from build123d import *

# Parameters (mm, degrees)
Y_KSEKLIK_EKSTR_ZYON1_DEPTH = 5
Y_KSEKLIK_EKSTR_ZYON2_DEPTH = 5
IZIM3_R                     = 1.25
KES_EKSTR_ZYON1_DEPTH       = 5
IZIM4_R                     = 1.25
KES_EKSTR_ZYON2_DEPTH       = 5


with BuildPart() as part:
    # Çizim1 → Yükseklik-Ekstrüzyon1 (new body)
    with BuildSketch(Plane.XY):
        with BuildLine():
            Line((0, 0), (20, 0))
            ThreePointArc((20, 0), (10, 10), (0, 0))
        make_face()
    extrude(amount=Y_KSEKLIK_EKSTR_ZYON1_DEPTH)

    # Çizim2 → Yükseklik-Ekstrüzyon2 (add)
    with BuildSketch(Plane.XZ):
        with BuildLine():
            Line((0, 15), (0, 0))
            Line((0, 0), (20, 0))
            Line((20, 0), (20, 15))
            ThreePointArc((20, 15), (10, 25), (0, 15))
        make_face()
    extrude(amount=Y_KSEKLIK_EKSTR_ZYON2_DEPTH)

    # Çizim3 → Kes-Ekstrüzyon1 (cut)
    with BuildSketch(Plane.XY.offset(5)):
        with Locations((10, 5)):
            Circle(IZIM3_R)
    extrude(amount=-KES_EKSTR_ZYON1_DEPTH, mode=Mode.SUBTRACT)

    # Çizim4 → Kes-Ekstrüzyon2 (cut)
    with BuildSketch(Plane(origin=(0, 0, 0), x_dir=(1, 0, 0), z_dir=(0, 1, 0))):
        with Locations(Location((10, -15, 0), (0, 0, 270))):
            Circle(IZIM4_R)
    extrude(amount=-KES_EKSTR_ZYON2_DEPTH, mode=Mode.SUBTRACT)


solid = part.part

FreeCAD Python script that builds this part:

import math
import FreeCAD as App
import Part
import Sketcher
from FreeCAD import Vector
Q = App.Units.Quantity

doc = App.newDocument("Part")
body = doc.addObject("PartDesign::Body", "Body")

# Sketch on XY plane
sketch1 = doc.addObject("Sketcher::SketchObject", "Sketch")
body.addObject(sketch1)
sketch1.AttachmentSupport = (doc.XY_Plane, [""])
sketch1.MapMode = "FlatFace"
sketch1.addGeometry([
    Part.LineSegment(Vector(0, 0, 0), Vector(20, 0, 0)),
    Part.ArcOfCircle(Part.Circle(Vector(10, 0, 0), Vector(0, 0, 1), 10), math.radians(0), math.radians(180)),
], False)
sketch1.addConstraint([
    Sketcher.Constraint("Coincident", 0, 1, 1, 2),
    Sketcher.Constraint("Coincident", 1, 1, 0, 2),
    Sketcher.Constraint("Horizontal", 0),
    Sketcher.Constraint("Coincident", 0, 1, -1, 1),
    Sketcher.Constraint("PointOnObject", 1, 3, -1),
    Sketcher.Constraint("Radius", 1, Q("10 mm")),
])
pad1 = doc.addObject("PartDesign::Pad", "Pad")
body.addObject(pad1)
pad1.Profile = sketch1
pad1.Length = 5

# Sketch on XZ plane
sketch2 = doc.addObject("Sketcher::SketchObject", "Sketch001")
body.addObject(sketch2)
sketch2.AttachmentSupport = (doc.XZ_Plane, [""])
sketch2.MapMode = "FlatFace"
sketch2.addGeometry([
    Part.LineSegment(Vector(0, 15, 0), Vector(0, 0, 0)),
    Part.LineSegment(Vector(0, 0, 0), Vector(20, 0, 0)),
    Part.LineSegment(Vector(20, 0, 0), Vector(20, 15, 0)),
    Part.ArcOfCircle(Part.Circle(Vector(10, 15, 0), Vector(0, 0, 1), 10), math.radians(0), math.radians(180)),
], False)
sketch2.addConstraint([
    Sketcher.Constraint("Coincident", 0, 2, 1, 1),
    Sketcher.Constraint("Coincident", 1, 2, 2, 1),
    Sketcher.Constraint("Tangent", 2, 2, 3, 1),
    Sketcher.Constraint("Tangent", 3, 2, 0, 1),
    Sketcher.Constraint("Vertical", 0),
    Sketcher.Constraint("Horizontal", 1),
    Sketcher.Constraint("Vertical", 2),
    Sketcher.Constraint("Coincident", 0, 2, -1, 1),
    Sketcher.Constraint("Radius", 3, Q("10 mm")),
    Sketcher.Constraint("DistanceY", 0, 2, 0, 1, Q("15 mm")),
])
pad2 = doc.addObject("PartDesign::Pad", "Pad001")
body.addObject(pad2)
pad2.Profile = sketch2
pad2.Length = 5

# Sketch on XY plane
sketch3 = doc.addObject("Sketcher::SketchObject", "Sketch002")
body.addObject(sketch3)
sketch3.AttachmentSupport = (doc.XY_Plane, [""])
sketch3.MapMode = "FlatFace"
sketch3.AttachmentOffset = App.Placement(Vector(0, 0, 5), App.Rotation())
sketch3.addGeometry(Part.Circle(Vector(10, 5, 0), Vector(0, 0, 1), 1.2), False)
sketch3.addConstraint([
    Sketcher.Constraint("Diameter", 0, Q("2.5 mm")),
    Sketcher.Constraint("DistanceX", -1, 1, 0, 3, Q("10 mm")),
    Sketcher.Constraint("DistanceY", -1, 1, 0, 3, Q("5 mm")),
])
pocket1 = doc.addObject("PartDesign::Pocket", "Pocket")
body.addObject(pocket1)
pocket1.Profile = sketch3
pocket1.Length = 5

# Sketch on XZ plane
sketch4 = doc.addObject("Sketcher::SketchObject", "Sketch003")
body.addObject(sketch4)
sketch4.AttachmentSupport = (doc.XZ_Plane, [""])
sketch4.MapMode = "FlatFace"
sketch4.addGeometry(Part.Circle(Vector(10, 15, 0), Vector(0, 0, 1), 1.2), False)
sketch4.addConstraint([
    Sketcher.Constraint("Diameter", 0, Q("2.5 mm")),
    Sketcher.Constraint("DistanceX", -1, 1, 0, 3, Q("10 mm")),
    Sketcher.Constraint("DistanceY", -1, 1, 0, 3, Q("15 mm")),
])
pocket2 = doc.addObject("PartDesign::Pocket", "Pocket001")
body.addObject(pocket2)
pocket2.Profile = sketch4
pocket2.Length = 5
pocket2.Reversed = True

doc.recompute()
